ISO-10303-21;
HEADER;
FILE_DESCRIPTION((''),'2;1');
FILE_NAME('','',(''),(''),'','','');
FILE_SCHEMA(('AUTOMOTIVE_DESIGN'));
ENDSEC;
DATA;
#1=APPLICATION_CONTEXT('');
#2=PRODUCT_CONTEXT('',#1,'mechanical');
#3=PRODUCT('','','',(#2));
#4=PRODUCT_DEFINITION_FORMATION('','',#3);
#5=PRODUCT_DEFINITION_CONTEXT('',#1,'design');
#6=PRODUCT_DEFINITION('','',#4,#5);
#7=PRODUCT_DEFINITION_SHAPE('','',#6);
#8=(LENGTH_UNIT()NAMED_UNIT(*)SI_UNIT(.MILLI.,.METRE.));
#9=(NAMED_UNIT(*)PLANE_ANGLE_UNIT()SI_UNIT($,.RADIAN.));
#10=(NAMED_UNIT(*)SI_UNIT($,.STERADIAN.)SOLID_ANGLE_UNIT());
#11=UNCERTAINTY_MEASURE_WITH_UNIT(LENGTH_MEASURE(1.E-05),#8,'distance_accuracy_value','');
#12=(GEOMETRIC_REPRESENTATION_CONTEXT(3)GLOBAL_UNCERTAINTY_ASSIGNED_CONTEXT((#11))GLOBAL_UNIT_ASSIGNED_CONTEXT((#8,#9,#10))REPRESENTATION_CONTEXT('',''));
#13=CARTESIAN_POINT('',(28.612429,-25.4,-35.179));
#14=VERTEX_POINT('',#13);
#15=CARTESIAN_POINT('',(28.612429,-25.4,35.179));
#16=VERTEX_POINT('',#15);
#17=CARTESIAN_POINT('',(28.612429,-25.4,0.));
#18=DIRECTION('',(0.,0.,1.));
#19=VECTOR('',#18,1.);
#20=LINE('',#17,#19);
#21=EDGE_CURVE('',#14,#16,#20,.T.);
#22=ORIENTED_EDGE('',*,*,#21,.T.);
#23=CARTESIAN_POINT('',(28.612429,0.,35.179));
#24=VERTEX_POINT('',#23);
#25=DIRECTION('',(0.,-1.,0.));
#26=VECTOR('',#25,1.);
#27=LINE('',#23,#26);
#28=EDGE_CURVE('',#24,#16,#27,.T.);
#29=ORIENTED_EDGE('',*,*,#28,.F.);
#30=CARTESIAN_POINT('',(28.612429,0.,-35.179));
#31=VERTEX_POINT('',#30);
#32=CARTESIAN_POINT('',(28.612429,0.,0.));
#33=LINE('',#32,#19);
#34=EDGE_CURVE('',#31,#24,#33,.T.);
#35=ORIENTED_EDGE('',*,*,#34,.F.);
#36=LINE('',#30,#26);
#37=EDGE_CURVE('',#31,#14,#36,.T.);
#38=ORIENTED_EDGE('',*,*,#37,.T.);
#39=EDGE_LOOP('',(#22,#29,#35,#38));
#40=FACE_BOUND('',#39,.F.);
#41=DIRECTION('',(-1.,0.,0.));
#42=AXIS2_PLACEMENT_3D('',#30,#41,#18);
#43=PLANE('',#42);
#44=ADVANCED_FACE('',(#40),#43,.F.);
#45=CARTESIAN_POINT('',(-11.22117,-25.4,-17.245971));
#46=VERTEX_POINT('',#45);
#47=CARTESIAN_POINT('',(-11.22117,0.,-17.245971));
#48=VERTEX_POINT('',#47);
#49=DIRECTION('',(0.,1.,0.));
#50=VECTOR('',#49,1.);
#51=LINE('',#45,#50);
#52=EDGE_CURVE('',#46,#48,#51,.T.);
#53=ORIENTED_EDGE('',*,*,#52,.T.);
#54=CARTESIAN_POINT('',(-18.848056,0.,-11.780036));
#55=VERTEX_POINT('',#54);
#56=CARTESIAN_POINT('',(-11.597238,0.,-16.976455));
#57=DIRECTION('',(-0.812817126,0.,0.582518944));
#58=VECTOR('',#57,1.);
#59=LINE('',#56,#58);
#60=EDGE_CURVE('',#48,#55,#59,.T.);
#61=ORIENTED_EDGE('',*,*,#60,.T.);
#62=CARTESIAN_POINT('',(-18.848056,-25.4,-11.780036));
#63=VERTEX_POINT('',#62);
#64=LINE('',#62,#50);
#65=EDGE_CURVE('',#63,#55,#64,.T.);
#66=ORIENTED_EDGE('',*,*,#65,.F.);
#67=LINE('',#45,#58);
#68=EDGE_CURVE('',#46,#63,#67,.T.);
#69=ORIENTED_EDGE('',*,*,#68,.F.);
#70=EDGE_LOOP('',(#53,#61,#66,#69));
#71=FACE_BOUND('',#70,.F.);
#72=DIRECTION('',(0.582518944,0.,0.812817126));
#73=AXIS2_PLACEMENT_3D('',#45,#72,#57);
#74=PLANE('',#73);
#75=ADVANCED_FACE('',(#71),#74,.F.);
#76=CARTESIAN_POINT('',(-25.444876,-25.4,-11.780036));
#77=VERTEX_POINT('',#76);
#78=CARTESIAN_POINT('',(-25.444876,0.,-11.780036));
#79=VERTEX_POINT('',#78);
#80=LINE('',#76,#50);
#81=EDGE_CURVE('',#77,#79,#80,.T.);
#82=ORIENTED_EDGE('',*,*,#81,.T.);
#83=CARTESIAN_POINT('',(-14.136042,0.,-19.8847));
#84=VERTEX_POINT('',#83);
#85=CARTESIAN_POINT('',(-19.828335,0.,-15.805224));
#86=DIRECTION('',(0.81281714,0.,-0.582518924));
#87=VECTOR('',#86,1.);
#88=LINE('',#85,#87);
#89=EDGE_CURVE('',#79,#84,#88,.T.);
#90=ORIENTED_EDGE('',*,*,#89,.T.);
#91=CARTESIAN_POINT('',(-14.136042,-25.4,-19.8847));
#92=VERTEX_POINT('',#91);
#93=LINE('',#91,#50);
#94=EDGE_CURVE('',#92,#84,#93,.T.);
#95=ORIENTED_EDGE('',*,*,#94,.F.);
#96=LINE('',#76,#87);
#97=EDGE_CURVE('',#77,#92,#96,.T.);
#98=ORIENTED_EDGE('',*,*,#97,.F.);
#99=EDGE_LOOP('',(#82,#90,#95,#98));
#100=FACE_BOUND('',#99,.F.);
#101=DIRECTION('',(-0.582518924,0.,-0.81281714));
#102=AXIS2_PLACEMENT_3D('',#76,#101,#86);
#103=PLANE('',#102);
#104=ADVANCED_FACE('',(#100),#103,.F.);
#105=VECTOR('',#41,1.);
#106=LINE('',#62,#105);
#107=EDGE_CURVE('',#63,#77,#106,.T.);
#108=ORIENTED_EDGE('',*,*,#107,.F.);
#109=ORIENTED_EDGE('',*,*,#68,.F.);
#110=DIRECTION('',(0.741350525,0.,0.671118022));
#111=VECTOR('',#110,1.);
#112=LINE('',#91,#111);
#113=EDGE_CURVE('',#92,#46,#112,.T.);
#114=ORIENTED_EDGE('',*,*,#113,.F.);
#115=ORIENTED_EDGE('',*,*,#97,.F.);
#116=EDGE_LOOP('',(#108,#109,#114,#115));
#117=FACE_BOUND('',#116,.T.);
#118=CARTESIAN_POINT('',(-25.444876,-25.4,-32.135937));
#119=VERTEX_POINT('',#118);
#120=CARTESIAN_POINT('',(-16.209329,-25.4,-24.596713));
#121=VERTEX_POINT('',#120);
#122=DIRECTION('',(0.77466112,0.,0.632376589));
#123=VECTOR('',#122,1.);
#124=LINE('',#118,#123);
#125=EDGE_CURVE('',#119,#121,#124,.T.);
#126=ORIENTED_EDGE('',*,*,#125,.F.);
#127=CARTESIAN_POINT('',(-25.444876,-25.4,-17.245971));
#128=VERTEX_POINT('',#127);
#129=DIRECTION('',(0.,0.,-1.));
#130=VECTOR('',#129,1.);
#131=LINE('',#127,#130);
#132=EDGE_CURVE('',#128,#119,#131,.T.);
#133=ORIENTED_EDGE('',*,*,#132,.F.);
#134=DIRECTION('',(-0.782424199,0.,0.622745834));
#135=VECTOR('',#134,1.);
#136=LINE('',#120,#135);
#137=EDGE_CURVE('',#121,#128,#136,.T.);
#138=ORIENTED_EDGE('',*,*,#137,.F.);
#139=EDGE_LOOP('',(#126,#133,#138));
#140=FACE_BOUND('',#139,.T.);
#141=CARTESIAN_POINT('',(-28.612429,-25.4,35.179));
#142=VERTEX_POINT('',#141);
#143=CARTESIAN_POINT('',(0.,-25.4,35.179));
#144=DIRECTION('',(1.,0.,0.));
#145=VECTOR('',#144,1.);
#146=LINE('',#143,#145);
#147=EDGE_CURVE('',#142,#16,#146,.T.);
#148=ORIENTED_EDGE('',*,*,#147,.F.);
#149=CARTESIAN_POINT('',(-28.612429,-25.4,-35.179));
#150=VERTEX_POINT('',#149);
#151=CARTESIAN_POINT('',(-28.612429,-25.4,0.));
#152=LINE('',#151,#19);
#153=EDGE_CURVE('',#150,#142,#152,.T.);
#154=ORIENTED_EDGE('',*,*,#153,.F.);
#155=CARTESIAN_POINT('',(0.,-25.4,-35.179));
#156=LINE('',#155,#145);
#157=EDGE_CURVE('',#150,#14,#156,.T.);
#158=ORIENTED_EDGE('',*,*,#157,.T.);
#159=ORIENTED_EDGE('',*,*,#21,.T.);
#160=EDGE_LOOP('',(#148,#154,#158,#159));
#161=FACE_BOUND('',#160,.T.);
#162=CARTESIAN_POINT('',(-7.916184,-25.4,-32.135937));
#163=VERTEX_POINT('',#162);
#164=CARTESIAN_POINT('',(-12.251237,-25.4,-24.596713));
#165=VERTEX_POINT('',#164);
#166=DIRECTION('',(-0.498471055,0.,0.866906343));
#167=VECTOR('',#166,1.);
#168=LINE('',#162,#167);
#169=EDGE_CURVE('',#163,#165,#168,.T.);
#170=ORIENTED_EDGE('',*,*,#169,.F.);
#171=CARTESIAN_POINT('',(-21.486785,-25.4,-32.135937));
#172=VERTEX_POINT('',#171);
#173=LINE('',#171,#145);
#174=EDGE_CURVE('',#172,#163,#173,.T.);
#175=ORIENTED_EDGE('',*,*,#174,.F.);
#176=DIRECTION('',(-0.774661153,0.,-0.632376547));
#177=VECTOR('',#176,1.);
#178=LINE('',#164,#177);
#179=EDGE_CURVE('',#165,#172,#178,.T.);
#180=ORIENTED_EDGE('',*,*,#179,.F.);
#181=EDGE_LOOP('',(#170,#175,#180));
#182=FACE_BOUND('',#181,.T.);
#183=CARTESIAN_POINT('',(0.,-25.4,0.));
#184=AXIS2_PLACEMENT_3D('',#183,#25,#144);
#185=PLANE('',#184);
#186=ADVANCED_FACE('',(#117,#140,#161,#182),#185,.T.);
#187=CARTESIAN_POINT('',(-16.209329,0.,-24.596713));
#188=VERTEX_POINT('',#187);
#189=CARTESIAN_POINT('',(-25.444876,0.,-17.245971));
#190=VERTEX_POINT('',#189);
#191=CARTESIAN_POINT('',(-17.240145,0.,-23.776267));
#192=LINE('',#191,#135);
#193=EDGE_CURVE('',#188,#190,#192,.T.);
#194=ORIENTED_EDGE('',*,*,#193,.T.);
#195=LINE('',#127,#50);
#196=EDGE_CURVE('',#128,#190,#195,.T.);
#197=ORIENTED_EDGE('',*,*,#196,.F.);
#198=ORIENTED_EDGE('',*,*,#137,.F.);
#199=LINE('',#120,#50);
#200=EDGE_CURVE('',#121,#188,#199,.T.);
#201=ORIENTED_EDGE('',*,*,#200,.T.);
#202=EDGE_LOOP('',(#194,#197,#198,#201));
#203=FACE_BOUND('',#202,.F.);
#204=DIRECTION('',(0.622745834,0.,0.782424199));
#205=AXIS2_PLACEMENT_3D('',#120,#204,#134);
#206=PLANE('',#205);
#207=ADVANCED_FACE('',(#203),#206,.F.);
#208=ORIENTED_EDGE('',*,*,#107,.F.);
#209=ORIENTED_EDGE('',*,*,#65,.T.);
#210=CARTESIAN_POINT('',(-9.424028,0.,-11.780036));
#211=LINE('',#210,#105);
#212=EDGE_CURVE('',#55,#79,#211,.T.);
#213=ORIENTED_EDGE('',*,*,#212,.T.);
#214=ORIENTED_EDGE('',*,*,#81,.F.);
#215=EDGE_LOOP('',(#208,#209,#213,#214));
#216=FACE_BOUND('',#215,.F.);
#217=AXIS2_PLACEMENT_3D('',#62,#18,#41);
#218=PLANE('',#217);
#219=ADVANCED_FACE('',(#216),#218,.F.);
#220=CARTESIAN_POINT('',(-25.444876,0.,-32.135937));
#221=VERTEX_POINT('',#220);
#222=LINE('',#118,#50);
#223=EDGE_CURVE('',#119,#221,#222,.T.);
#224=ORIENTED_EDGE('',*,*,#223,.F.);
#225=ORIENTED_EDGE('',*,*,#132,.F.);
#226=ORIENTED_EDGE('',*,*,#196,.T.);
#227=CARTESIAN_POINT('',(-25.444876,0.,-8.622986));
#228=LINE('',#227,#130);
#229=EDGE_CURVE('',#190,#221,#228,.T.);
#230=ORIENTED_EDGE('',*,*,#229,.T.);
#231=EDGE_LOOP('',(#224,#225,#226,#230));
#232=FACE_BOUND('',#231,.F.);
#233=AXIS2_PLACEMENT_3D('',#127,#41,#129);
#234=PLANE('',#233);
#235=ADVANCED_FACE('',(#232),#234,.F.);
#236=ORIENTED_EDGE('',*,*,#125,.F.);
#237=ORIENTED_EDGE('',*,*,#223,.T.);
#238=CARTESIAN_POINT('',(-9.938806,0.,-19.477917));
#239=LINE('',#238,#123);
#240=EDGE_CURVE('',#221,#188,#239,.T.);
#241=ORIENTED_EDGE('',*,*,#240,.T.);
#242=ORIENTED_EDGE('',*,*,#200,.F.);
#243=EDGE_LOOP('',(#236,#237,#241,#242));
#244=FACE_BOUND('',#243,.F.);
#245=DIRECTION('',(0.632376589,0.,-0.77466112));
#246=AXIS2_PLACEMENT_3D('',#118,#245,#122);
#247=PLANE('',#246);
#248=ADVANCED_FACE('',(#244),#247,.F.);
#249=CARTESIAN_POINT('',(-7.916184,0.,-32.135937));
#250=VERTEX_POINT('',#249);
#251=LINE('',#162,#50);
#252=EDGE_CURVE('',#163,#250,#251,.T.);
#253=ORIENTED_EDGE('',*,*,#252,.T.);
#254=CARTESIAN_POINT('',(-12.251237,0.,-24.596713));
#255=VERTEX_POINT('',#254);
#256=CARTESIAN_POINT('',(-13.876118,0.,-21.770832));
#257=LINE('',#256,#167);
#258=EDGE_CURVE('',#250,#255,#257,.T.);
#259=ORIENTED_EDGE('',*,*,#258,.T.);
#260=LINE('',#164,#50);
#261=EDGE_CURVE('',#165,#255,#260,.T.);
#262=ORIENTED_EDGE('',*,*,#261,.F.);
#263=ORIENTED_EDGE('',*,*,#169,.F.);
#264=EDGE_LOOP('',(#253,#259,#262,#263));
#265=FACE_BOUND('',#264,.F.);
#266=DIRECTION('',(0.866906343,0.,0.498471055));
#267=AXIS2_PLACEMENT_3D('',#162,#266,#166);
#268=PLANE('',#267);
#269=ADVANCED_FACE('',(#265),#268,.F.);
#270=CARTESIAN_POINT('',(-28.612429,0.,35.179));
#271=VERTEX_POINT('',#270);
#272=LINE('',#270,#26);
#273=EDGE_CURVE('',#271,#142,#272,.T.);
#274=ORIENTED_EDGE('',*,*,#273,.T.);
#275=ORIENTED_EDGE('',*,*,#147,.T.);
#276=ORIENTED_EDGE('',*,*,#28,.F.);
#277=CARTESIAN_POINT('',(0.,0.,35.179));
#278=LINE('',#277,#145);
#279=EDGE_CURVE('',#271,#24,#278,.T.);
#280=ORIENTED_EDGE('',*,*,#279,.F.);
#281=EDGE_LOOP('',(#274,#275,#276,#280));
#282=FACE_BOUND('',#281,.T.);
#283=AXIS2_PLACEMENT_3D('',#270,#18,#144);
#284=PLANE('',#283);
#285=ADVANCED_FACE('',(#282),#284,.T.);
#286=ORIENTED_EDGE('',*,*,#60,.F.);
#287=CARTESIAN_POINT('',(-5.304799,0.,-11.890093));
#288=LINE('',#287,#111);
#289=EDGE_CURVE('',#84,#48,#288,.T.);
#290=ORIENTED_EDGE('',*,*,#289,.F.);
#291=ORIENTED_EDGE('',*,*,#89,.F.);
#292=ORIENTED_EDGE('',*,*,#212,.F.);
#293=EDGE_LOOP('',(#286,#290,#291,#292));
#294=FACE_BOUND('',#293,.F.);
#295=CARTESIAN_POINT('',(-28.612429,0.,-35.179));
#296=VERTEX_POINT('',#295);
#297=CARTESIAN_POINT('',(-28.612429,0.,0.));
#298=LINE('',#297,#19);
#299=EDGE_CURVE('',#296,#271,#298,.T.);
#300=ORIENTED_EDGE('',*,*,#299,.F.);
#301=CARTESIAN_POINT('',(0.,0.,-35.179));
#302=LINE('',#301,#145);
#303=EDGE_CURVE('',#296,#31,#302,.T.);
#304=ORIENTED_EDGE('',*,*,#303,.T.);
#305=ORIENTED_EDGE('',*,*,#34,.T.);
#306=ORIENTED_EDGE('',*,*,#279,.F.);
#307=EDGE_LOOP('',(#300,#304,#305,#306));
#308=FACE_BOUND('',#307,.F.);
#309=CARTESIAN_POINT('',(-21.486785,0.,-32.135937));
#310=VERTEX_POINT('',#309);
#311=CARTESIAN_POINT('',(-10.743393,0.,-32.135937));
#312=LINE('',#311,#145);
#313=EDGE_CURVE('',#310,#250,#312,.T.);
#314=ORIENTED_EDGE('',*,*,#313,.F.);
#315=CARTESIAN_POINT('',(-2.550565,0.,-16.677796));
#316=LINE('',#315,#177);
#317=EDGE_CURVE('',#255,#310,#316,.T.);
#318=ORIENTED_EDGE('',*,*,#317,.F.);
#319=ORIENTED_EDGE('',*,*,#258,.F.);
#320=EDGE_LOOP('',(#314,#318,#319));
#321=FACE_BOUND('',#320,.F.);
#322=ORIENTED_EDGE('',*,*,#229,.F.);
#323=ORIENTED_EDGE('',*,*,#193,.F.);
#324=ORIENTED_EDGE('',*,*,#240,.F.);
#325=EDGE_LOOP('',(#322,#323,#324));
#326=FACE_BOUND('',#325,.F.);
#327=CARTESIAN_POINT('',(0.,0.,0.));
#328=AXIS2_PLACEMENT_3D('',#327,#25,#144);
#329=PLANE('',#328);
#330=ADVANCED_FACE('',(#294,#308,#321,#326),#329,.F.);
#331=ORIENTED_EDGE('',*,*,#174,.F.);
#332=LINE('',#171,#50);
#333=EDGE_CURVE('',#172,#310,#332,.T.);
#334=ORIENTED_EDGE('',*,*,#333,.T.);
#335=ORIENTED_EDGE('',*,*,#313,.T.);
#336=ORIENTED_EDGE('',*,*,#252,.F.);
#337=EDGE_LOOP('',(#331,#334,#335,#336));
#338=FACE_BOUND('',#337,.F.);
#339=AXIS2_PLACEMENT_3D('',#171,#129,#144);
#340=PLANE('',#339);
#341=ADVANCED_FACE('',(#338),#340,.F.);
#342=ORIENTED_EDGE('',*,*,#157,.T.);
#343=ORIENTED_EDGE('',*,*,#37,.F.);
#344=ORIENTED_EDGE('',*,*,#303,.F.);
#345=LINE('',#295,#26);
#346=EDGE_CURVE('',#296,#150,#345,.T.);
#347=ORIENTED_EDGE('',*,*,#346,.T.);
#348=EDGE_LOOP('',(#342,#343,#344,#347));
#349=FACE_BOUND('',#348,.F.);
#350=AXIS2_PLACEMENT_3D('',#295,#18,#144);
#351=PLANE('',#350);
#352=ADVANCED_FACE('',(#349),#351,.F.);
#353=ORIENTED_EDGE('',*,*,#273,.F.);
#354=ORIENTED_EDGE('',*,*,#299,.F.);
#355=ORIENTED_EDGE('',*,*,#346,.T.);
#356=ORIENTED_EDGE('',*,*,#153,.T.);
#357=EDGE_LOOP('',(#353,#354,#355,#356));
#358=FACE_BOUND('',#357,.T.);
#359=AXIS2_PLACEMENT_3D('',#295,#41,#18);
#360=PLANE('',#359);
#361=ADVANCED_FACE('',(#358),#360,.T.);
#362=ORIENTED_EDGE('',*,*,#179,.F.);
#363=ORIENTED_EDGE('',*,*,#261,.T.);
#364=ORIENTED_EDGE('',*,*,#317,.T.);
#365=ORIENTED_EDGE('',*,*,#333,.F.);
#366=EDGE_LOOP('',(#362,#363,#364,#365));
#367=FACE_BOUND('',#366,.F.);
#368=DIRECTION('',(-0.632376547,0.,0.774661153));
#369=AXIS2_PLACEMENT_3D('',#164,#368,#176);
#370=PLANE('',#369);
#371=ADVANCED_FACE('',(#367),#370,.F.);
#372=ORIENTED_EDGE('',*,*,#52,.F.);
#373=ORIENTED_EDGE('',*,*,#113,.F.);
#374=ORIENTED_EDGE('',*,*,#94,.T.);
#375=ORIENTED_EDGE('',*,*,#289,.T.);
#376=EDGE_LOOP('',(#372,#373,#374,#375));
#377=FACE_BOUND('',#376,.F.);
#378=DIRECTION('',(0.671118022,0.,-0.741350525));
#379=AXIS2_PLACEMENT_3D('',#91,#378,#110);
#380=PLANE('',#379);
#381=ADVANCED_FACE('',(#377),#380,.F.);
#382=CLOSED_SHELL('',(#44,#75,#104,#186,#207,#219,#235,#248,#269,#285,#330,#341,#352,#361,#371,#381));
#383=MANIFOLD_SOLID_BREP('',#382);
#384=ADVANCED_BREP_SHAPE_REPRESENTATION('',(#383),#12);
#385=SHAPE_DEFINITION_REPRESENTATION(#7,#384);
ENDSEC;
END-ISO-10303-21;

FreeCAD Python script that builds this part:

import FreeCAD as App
import Part
import Sketcher
from FreeCAD import Vector
Q = App.Units.Quantity


def add_polygon(sketch, points):
    """Adds a closed chain of lines whose ends are joined by coincident constraints."""
    first, n = sketch.GeometryCount, len(points)
    for a, b in zip(points, points[1:] + points[:1]):
        sketch.addGeometry(Part.LineSegment(App.Vector(*a, 0), App.Vector(*b, 0)), False)
    for i in range(n):
        sketch.addConstraint(Sketcher.Constraint("Coincident", first + i, 2, first + (i + 1) % n, 1))

doc = App.newDocument("Part")
body = doc.addObject("PartDesign::Body", "Body")

# Sketch on XZ plane
sketch1 = body.newObject("Sketcher::SketchObject", "Sketch")
sketch1.AttachmentSupport = (doc.getObject("XZ_Plane"), [""])
sketch1.MapMode = "FlatFace"
add_polygon(sketch1, [(-29, 35), (-29, -35), (29, -35), (29, 35)])  # lines 0-3
sketch1.addConstraint(Sketcher.Constraint("Vertical", 0))
sketch1.addConstraint(Sketcher.Constraint("Horizontal", 1))
sketch1.addConstraint(Sketcher.Constraint("Vertical", 2))
sketch1.addConstraint(Sketcher.Constraint("Horizontal", 3))
sketch1.addConstraint(Sketcher.Constraint("Symmetric", 0, 2, 2, 2, -1, 1))
sketch1.addConstraint(Sketcher.Constraint("DistanceY", 0, 2, 0, 1, Q("2.77 in")))
sketch1.addConstraint(Sketcher.Constraint("DistanceX", 1, 1, 1, 2, 57.224858))
pad1 = body.newObject("PartDesign::Pad", "Pad")
pad1.Profile = sketch1
pad1.Length = Q("1 in")

# Sketch on XZ plane
sketch2 = body.newObject("Sketcher::SketchObject", "Sketch001")
sketch2.AttachmentSupport = (doc.getObject("XZ_Plane"), [""])
sketch2.MapMode = "FlatFace"
sketch2.AttachmentOffset = App.Placement(Vector(0, 0, 1 * 25.4), App.Rotation())
add_polygon(sketch2, [(-25.4, -11.8), (-14.1, -19.9), (-11.2, -17.2), (-18.8, -11.8)])  # lines 0-3
add_polygon(sketch2, [(-25.4, -17.2), (-25.4, -32.1), (-16.2, -24.6)])  # lines 4-6
add_polygon(sketch2, [(-12.3, -24.6), (-21.5, -32.1), (-7.9, -32.1)])  # lines 7-9
sketch2.addConstraint(Sketcher.Constraint("Horizontal", 3))
sketch2.addConstraint(Sketcher.Constraint("Vertical", 4))
sketch2.addConstraint(Sketcher.Constraint("Horizontal", 8))
sketch2.addConstraint(Sketcher.Constraint("Parallel", 0, 2))
sketch2.addConstraint(Sketcher.Constraint("Parallel", 5, 7))
sketch2.addConstraint(Sketcher.Constraint("Horizontal", 1, 2, 6, 2))
sketch2.addConstraint(Sketcher.Constraint("Horizontal", 4, 2, 7, 2))
sketch2.addConstraint(Sketcher.Constraint("Horizontal", 5, 2, 9, 2))
sketch2.addConstraint(Sketcher.Constraint("Vertical", 3, 2, 4, 2))
sketch2.addConstraint(Sketcher.Constraint("DistanceX", 8, 1, 8, 2, 13.570601))
sketch2.addConstraint(Sketcher.Constraint("Distance", 9, 8.6967))
sketch2.addConstraint(Sketcher.Constraint("DistanceX", 3, 2, 3, 1, 6.59682))
sketch2.addConstraint(Sketcher.Constraint("DistanceY", 0, 2, -1, 1, 19.8847))
sketch2.addConstraint(Sketcher.Constraint("DistanceY", 4, 2, 3, 2, 20.355901))
sketch2.addConstraint(Sketcher.Constraint("Distance", 1, 3.93184))
sketch2.addConstraint(Sketcher.Constraint("Distance", 6, 11.803759))
sketch2.addConstraint(Sketcher.Constraint("Distance", 7, 11.922049))
sketch2.addConstraint(Sketcher.Constraint("DistanceX", 1, 2, -1, 1, 11.22117))
sketch2.addConstraint(Sketcher.Constraint("DistanceY", 1, 2, -1, 1, 17.245971))
sketch2.addConstraint(Sketcher.Constraint("DistanceX", 4, 2, 7, 2, 3.958091))
pocket1 = body.newObject("PartDesign::Pocket", "Pocket")
pocket1.Profile = sketch2
pocket1.Type = "ThroughAll"

doc.recompute()
